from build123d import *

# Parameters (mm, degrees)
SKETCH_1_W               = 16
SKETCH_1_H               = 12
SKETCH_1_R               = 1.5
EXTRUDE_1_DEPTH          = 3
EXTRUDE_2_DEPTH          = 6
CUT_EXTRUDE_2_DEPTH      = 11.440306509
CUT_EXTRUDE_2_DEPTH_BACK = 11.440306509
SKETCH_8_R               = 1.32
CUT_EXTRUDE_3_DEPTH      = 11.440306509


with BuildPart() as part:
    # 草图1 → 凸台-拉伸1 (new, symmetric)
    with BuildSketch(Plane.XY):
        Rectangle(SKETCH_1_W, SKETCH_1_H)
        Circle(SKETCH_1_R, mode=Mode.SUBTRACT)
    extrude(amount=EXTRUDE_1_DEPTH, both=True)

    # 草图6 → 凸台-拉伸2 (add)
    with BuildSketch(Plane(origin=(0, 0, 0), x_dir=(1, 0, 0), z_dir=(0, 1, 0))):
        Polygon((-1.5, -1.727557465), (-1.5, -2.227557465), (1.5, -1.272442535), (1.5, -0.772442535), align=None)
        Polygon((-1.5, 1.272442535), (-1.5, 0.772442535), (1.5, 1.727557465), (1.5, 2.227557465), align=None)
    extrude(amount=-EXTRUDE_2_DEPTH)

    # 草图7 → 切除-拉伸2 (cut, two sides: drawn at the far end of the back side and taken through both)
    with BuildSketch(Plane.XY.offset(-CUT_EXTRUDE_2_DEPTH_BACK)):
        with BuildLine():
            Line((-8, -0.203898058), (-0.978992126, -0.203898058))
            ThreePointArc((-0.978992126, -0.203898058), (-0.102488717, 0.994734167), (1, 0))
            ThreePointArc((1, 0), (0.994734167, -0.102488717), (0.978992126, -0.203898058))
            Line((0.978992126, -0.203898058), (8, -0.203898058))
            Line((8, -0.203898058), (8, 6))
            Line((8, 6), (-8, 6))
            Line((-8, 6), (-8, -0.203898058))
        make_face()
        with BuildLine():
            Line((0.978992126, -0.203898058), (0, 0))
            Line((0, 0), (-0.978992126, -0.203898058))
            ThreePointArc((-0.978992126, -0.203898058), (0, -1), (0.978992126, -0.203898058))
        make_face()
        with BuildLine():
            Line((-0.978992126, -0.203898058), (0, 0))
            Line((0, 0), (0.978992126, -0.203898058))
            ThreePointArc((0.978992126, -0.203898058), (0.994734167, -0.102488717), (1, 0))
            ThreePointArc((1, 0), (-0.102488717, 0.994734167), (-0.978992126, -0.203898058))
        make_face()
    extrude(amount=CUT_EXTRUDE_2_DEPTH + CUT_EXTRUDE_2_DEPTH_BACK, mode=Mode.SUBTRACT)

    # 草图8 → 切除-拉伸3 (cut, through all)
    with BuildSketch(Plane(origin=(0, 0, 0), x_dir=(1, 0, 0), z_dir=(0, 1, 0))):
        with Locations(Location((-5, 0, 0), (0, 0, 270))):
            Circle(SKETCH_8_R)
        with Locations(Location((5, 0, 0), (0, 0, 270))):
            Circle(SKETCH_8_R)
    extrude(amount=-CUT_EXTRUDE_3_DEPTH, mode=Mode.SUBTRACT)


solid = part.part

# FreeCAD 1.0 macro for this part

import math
import FreeCAD as App
import Part
import Sketcher
from FreeCAD import Vector
Q = App.Units.Quantity

doc = App.newDocument("Part")
body = doc.addObject("PartDesign::Body", "Body")

# Sketch on XY plane
sketch1 = doc.addObject("Sketcher::SketchObject", "Sketch")
body.addObject(sketch1)
sketch1.AttachmentSupport = (doc.XY_Plane, [""])
sketch1.MapMode = "FlatFace"
sketch1.addGeometry([
    Part.LineSegment(Vector(-8, 6, 0), Vector(-8, -6, 0)),  # 0
    Part.LineSegment(Vector(-8, -6, 0), Vector(8, -6, 0)),  # 1
    Part.LineSegment(Vector(8, -6, 0), Vector(8, 6, 0)),  # 2
    Part.LineSegment(Vector(8, 6, 0), Vector(-8, 6, 0)),  # 3
    Part.Circle(Vector(0, 0, 0), Vector(0, 0, 1), 1.5),  # 4
], False)
sketch1.addConstraint([
    Sketcher.Constraint("Coincident", 0, 2, 1, 1),
    Sketcher.Constraint("Coincident", 1, 2, 2, 1),
    Sketcher.Constraint("Coincident", 2, 2, 3, 1),
    Sketcher.Constraint("Coincident", 3, 2, 0, 1),
    Sketcher.Constraint("Vertical", 0),
    Sketcher.Constraint("Horizontal", 1),
    Sketcher.Constraint("Vertical", 2),
    Sketcher.Constraint("Horizontal", 3),
    Sketcher.Constraint("Coincident", 4, 3, -1, 1),
    Sketcher.Constraint("Symmetric", 0, 2, 2, 2, -1, 1),
    Sketcher.Constraint("Diameter", 4, Q("3 mm")),
    Sketcher.Constraint("DistanceX", 1, 1, 1, 2, Q("16 mm")),
    Sketcher.Constraint("DistanceY", 0, 2, 0, 1, Q("12 mm")),
])
pad1 = doc.addObject("PartDesign::Pad", "Pad")
body.addObject(pad1)
pad1.Profile = sketch1
pad1.Length = 6
pad1.Midplane = True

# Sketch on XZ plane
sketch2 = doc.addObject("Sketcher::SketchObject", "Sketch001")
body.addObject(sketch2)
sketch2.AttachmentSupport = (doc.XZ_Plane, [""])
sketch2.MapMode = "FlatFace"
sketch2.addGeometry([
    Part.LineSegment(Vector(-1.5, 1.73, 0), Vector(-1.5, 2.23, 0)),  # 0
    Part.LineSegment(Vector(-1.5, 2.23, 0), Vector(1.5, 1.27, 0)),  # 1
    Part.LineSegment(Vector(1.5, 1.27, 0), Vector(1.5, 0.77, 0)),  # 2
    Part.LineSegment(Vector(1.5, 0.77, 0), Vector(-1.5, 1.73, 0)),  # 3
    Part.LineSegment(Vector(-1.5, -1.27, 0), Vector(-1.5, -0.77, 0)),  # 4
    Part.LineSegment(Vector(-1.5, -0.77, 0), Vector(1.5, -1.73, 0)),  # 5
    Part.LineSegment(Vector(1.5, -1.73, 0), Vector(1.5, -2.23, 0)),  # 6
    Part.LineSegment(Vector(1.5, -2.23, 0), Vector(-1.5, -1.27, 0)),  # 7
], False)
sketch2.addConstraint([
    Sketcher.Constraint("Coincident", 0, 2, 1, 1),
    Sketcher.Constraint("Coincident", 1, 2, 2, 1),
    Sketcher.Constraint("Coincident", 2, 2, 3, 1),
    Sketcher.Constraint("Coincident", 3, 2, 0, 1),
    Sketcher.Constraint("Coincident", 4, 2, 5, 1),
    Sketcher.Constraint("Coincident", 5, 2, 6, 1),
    Sketcher.Constraint("Coincident", 6, 2, 7, 1),
    Sketcher.Constraint("Coincident", 7, 2, 4, 1),
    Sketcher.Constraint("Vertical", 0),
    Sketcher.Constraint("Vertical", 2),
    Sketcher.Constraint("Vertical", 4),
    Sketcher.Constraint("Vertical", 6),
    Sketcher.Constraint("Symmetric", 2, 2, 4, 2, -1, 1),
    Sketcher.Constraint("Symmetric", 3, 2, 5, 2, -1, 1),
    Sketcher.Constraint("Parallel", 1, 3),
    Sketcher.Constraint("Parallel", 5, 7),
    Sketcher.Constraint("Vertical", 3, 2, 4, 2),
    Sketcher.Constraint("Equal", 2, 4),
    Sketcher.Constraint("DistanceY", 0, 1, 0, 2, Q("0.5 mm")),
    Sketcher.Constraint("DistanceX", 0, 2, 1, 2, Q("3 mm")),
    Sketcher.Constraint("DistanceY", 4, 2, 0, 2, Q("3 mm")),
    Sketcher.Constraint("Angle", 1, Q("-17.66 deg")),
])
pad2 = doc.addObject("PartDesign::Pad", "Pad001")
body.addObject(pad2)
pad2.Profile = sketch2
pad2.Length = 6

# Sketch on XY plane
sketch3 = doc.addObject("Sketcher::SketchObject", "Sketch002")
body.addObject(sketch3)
sketch3.AttachmentSupport = (doc.XY_Plane, [""])
sketch3.MapMode = "FlatFace"
sketch3.addGeometry([
    Part.LineSegment(Vector(8, 6, 0), Vector(-8, 6, 0)),  # 0
    Part.LineSegment(Vector(-8, 6, 0), Vector(-8, -0.2, 0)),  # 1
    Part.LineSegment(Vector(-8, -0.2, 0), Vector(-1, -0.2, 0)),  # 2
    Part.ArcOfCircle(Part.Circle(Vector(0, 0, 0), Vector(0, 0, 1), 1), math.radians(-168), math.radians(-12)),  # 3
    Part.LineSegment(Vector(1, -0.2, 0), Vector(8, -0.2, 0)),  # 4
    Part.LineSegment(Vector(8, -0.2, 0), Vector(8, 6, 0)),  # 5
], False)
sketch3.addConstraint([
    Sketcher.Constraint("Coincident", 0, 2, 1, 1),
    Sketcher.Constraint("Coincident", 1, 2, 2, 1),
    Sketcher.Constraint("Coincident", 2, 2, 3, 1),
    Sketcher.Constraint("Coincident", 3, 2, 4, 1),
    Sketcher.Constraint("Coincident", 4, 2, 5, 1),
    Sketcher.Constraint("Coincident", 5, 2, 0, 1),
    Sketcher.Constraint("Horizontal", 0),
    Sketcher.Constraint("Vertical", 1),
    Sketcher.Constraint("Horizontal", 2),
    Sketcher.Constraint("Horizontal", 4),
    Sketcher.Constraint("Vertical", 5),
    Sketcher.Constraint("Coincident", 3, 3, -1, 1),
    Sketcher.Constraint("Symmetric", 1, 2, 4, 2, -2),
    Sketcher.Constraint("Radius", 3, Q("1 mm")),
    Sketcher.Constraint("DistanceX", 0, 2, 0, 1, Q("16 mm")),
    Sketcher.Constraint("DistanceY", -1, 1, 0, 2, Q("6 mm")),
    Sketcher.Constraint("DistanceY", 1, 2, 1, 1, Q("6.203898 mm")),
])
pocket1 = doc.addObject("PartDesign::Pocket", "Pocket")
body.addObject(pocket1)
pocket1.Profile = sketch3
pocket1.Type = "ThroughAll"
pocket1.Midplane = True

# Sketch on XZ plane
sketch4 = doc.addObject("Sketcher::SketchObject", "Sketch003")
body.addObject(sketch4)
sketch4.AttachmentSupport = (doc.XZ_Plane, [""])
sketch4.MapMode = "FlatFace"
sketch4.addGeometry([
    Part.Circle(Vector(-5, 0, 0), Vector(0, 0, 1), 1.3),
    Part.Circle(Vector(5, 0, 0), Vector(0, 0, 1), 1.3),
], False)
sketch4.addConstraint([
    Sketcher.Constraint("Equal", 0, 1),
    Sketcher.Constraint("Symmetric", 0, 3, 1, 3, -1, 1),
    Sketcher.Constraint("PointOnObject", 0, 3, -1),
    Sketcher.Constraint("Diameter", 0, Q("2.64 mm")),
    Sketcher.Constraint("DistanceX", 0, 3, -1, 1, Q("5 mm")),
])
pocket2 = doc.addObject("PartDesign::Pocket", "Pocket001")
body.addObject(pocket2)
pocket2.Profile = sketch4
pocket2.Type = "ThroughAll"
pocket2.Reversed = True

doc.recompute()
